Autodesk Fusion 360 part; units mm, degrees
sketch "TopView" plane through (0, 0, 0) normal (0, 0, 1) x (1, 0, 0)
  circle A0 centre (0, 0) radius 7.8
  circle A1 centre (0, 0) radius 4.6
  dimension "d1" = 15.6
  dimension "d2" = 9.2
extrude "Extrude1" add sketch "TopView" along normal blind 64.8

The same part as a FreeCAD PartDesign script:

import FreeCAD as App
import Part
import Sketcher
from FreeCAD import Vector
Q = App.Units.Quantity

doc = App.newDocument("Part")
body = doc.addObject("PartDesign::Body", "Body")

sketch1 = body.newObject("Sketcher::SketchObject", "Sketch")
sketch1.AttachmentSupport = (doc.getObject("XY_Plane"), [""])
sketch1.MapMode = "FlatFace"
sketch1.addGeometry(Part.Circle(Vector(0, 0, 0), Vector(0, 0, 1), 7.8), False)
sketch1.addGeometry(Part.Circle(Vector(0, 0, 0), Vector(0, 0, 1), 4.6), False)
sketch1.addConstraint(Sketcher.Constraint("Coincident", 0, 3, -1, 1))
sketch1.addConstraint(Sketcher.Constraint("Coincident", 1, 3, -1, 1))
sketch1.addConstraint(Sketcher.Constraint("Diameter", 0, Q("15.6 mm")))
sketch1.addConstraint(Sketcher.Constraint("Diameter", 1, Q("9.2 mm")))
pad1 = body.newObject("PartDesign::Pad", "Pad")
pad1.Profile = sketch1
pad1.Length = 64.8

doc.recompute()
